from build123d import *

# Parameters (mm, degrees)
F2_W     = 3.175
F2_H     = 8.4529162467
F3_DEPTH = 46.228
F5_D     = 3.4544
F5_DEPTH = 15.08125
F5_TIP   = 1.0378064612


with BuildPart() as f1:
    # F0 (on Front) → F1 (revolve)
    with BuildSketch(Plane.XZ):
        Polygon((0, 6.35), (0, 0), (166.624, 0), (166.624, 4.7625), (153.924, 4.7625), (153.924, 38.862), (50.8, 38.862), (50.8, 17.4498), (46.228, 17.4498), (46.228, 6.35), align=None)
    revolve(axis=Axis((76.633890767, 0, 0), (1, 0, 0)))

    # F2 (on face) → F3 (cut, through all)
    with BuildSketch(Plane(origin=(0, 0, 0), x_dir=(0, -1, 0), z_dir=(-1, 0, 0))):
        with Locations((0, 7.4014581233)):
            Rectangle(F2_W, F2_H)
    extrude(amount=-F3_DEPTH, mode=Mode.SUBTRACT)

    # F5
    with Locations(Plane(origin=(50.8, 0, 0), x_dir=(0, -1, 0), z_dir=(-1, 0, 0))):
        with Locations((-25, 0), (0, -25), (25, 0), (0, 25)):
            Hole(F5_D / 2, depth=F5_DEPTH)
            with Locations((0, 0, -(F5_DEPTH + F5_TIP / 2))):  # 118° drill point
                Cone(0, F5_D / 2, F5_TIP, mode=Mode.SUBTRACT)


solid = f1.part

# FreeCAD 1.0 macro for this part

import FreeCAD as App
import Part
import Sketcher

V = App.Vector
Q = App.Units.Quantity

doc = App.newDocument("Part")
body = doc.addObject("PartDesign::Body", "Body")

sketch1 = body.newObject("Sketcher::SketchObject", "Sketch")
sketch1.AttachmentSupport = (doc.getObject("XZ_Plane"), [""])
sketch1.MapMode = "FlatFace"
sketch1.addGeometry(Part.LineSegment(V(0, 6.3, 0), V(0, 0, 0)), False)
sketch1.addGeometry(Part.LineSegment(V(0, 0, 0), V(166.6, 0, 0)), False)
sketch1.addGeometry(Part.LineSegment(V(166.6, 0, 0), V(166.6, 4.8, 0)), False)
sketch1.addGeometry(Part.LineSegment(V(166.6, 4.8, 0), V(153.9, 4.8, 0)), False)
sketch1.addGeometry(Part.LineSegment(V(153.9, 4.8, 0), V(153.9, 38.9, 0)), False)
sketch1.addGeometry(Part.LineSegment(V(153.9, 38.9, 0), V(50.8, 38.9, 0)), False)
sketch1.addGeometry(Part.LineSegment(V(50.8, 38.9, 0), V(50.8, 17.4, 0)), False)
sketch1.addGeometry(Part.LineSegment(V(50.8, 17.4, 0), V(46.2, 17.4, 0)), False)
sketch1.addGeometry(Part.LineSegment(V(46.2, 17.4, 0), V(46.2, 6.3, 0)), False)
sketch1.addGeometry(Part.LineSegment(V(46.2, 6.3, 0), V(0, 6.3, 0)), False)
sketch1.addConstraint(Sketcher.Constraint("Coincident", 0, 2, 1, 1))
sketch1.addConstraint(Sketcher.Constraint("Coincident", 1, 2, 2, 1))
sketch1.addConstraint(Sketcher.Constraint("Coincident", 2, 2, 3, 1))
sketch1.addConstraint(Sketcher.Constraint("Coincident", 3, 2, 4, 1))
sketch1.addConstraint(Sketcher.Constraint("Coincident", 4, 2, 5, 1))
sketch1.addConstraint(Sketcher.Constraint("Coincident", 5, 2, 6, 1))
sketch1.addConstraint(Sketcher.Constraint("Coincident", 6, 2, 7, 1))
sketch1.addConstraint(Sketcher.Constraint("Coincident", 7, 2, 8, 1))
sketch1.addConstraint(Sketcher.Constraint("Coincident", 8, 2, 9, 1))
sketch1.addConstraint(Sketcher.Constraint("Coincident", 9, 2, 0, 1))
sketch1.addConstraint(Sketcher.Constraint("Vertical", 0))
sketch1.addConstraint(Sketcher.Constraint("Horizontal", 1))
sketch1.addConstraint(Sketcher.Constraint("Vertical", 2))
sketch1.addConstraint(Sketcher.Constraint("Horizontal", 3))
sketch1.addConstraint(Sketcher.Constraint("Vertical", 4))
sketch1.addConstraint(Sketcher.Constraint("Horizontal", 5))
sketch1.addConstraint(Sketcher.Constraint("Vertical", 6))
sketch1.addConstraint(Sketcher.Constraint("Horizontal", 7))
sketch1.addConstraint(Sketcher.Constraint("Vertical", 8))
sketch1.addConstraint(Sketcher.Constraint("Horizontal", 9))
sketch1.addConstraint(Sketcher.Constraint("Coincident", 0, 2, -1, 1))
sketch1.addConstraint(Sketcher.Constraint("DistanceX", 3, 2, 3, 1, Q("0.5 in")))
sketch1.addConstraint(Sketcher.Constraint("DistanceX", -1, 1, 5, 2, Q("2 in")))
sketch1.addConstraint(Sketcher.Constraint("DistanceX", 1, 1, 1, 2, Q("6.56 in")))
sketch1.addConstraint(Sketcher.Constraint("DistanceX", 7, 2, 7, 1, Q("0.18 in")))
sketch1.addConstraint(Sketcher.Constraint("DistanceY", 0, 2, 0, 1, Q("0.25 in")))
sketch1.addConstraint(Sketcher.Constraint("DistanceY", 2, 1, 2, 2, Q("0.1875 in")))
sketch1.addConstraint(Sketcher.Constraint("DistanceY", 6, 2, 6, 1, Q("0.843 in")))
sketch1.addConstraint(Sketcher.Constraint("DistanceY", 8, 2, 8, 1, Q("0.437 in")))
revolution = body.newObject("PartDesign::Revolution", "Revolution")
revolution.Profile = sketch1
revolution.ReferenceAxis = (sketch1, ["H_Axis"])
revolution.Angle = 360

sketch2 = body.newObject("Sketcher::SketchObject", "Sketch001")
sketch2.AttachmentSupport = (doc.getObject("YZ_Plane"), [""])
sketch2.MapMode = "FlatFace"
sketch2.addGeometry(Part.LineSegment(V(1.6, 11.6, 0), V(1.6, 3.2, 0)), False)
sketch2.addGeometry(Part.LineSegment(V(1.6, 3.2, 0), V(-1.6, 3.2, 0)), False)
sketch2.addGeometry(Part.LineSegment(V(-1.6, 3.2, 0), V(-1.6, 11.6, 0)), False)
sketch2.addGeometry(Part.LineSegment(V(-1.6, 11.6, 0), V(1.6, 11.6, 0)), False)
sketch2.addConstraint(Sketcher.Constraint("Coincident", 0, 2, 1, 1))
sketch2.addConstraint(Sketcher.Constraint("Coincident", 1, 2, 2, 1))
sketch2.addConstraint(Sketcher.Constraint("Coincident", 2, 2, 3, 1))
sketch2.addConstraint(Sketcher.Constraint("Coincident", 3, 2, 0, 1))
sketch2.addConstraint(Sketcher.Constraint("Vertical", 0))
sketch2.addConstraint(Sketcher.Constraint("Horizontal", 1))
sketch2.addConstraint(Sketcher.Constraint("Vertical", 2))
sketch2.addConstraint(Sketcher.Constraint("Horizontal", 3))
sketch2.addConstraint(Sketcher.Constraint("DistanceX", 1, 2, 1, 1, Q("0.125 in")))
sketch2.addConstraint(Sketcher.Constraint("DistanceX", -1, 1, 0, 2, Q("0.0625 in")))
sketch2.addConstraint(Sketcher.Constraint("DistanceY", -1, 1, 0, 2, Q("0.125 in")))
sketch2.addConstraint(Sketcher.Constraint("DistanceY", 0, 2, 0, 1, 8.452916))
pocket1 = body.newObject("PartDesign::Pocket", "Pocket")
pocket1.Profile = sketch2
pocket1.Length = Q("1.82 in")
pocket1.Reversed = True

sketch3 = body.newObject("Sketcher::SketchObject", "Sketch002")
sketch3.AttachmentSupport = (doc.getObject("YZ_Plane"), [""])
sketch3.MapMode = "FlatFace"
sketch3.AttachmentOffset = App.Placement(V(0, 0, 2 * 25.4), App.Rotation())
sketch3.addGeometry(Part.Circle(V(25, 0, 0), V(0, 0, 1), 1.7), False)
sketch3.addGeometry(Part.Circle(V(0, -25, 0), V(0, 0, 1), 1.7), False)
sketch3.addGeometry(Part.Circle(V(-25, 0, 0), V(0, 0, 1), 1.7), False)
sketch3.addGeometry(Part.Circle(V(0, 25, 0), V(0, 0, 1), 1.7), False)
sketch3.addConstraint(Sketcher.Constraint("Equal", 0, 1))
sketch3.addConstraint(Sketcher.Constraint("Equal", 1, 2))
sketch3.addConstraint(Sketcher.Constraint("Equal", 2, 3))
sketch3.addConstraint(Sketcher.Constraint("Symmetric", 0, 3, 2, 3, -1, 1))
sketch3.addConstraint(Sketcher.Constraint("Symmetric", 1, 3, 3, 3, -1, 1))
sketch3.addConstraint(Sketcher.Constraint("PointOnObject", 0, 3, -1))
sketch3.addConstraint(Sketcher.Constraint("PointOnObject", 1, 3, -2))
sketch3.addConstraint(Sketcher.Constraint("Diameter", 0, Q("0.136 in")))
sketch3.addConstraint(Sketcher.Constraint("DistanceX", -1, 1, 0, 3, 25.0))
sketch3.addConstraint(Sketcher.Constraint("DistanceY", 1, 3, -1, 1, 25.0))
doc.recompute()
hole = body.newObject("PartDesign::Hole", "Hole")
hole.Profile = sketch3
hole.ThreadType = "None"
hole.Diameter = Q("0.136 in")
hole.DepthType = "Dimension"
hole.Depth = Q("0.59375 in")
hole.DrillPoint = "Angled"
hole.DrillPointAngle = 118
hole.Reversed = True

doc.recompute()
